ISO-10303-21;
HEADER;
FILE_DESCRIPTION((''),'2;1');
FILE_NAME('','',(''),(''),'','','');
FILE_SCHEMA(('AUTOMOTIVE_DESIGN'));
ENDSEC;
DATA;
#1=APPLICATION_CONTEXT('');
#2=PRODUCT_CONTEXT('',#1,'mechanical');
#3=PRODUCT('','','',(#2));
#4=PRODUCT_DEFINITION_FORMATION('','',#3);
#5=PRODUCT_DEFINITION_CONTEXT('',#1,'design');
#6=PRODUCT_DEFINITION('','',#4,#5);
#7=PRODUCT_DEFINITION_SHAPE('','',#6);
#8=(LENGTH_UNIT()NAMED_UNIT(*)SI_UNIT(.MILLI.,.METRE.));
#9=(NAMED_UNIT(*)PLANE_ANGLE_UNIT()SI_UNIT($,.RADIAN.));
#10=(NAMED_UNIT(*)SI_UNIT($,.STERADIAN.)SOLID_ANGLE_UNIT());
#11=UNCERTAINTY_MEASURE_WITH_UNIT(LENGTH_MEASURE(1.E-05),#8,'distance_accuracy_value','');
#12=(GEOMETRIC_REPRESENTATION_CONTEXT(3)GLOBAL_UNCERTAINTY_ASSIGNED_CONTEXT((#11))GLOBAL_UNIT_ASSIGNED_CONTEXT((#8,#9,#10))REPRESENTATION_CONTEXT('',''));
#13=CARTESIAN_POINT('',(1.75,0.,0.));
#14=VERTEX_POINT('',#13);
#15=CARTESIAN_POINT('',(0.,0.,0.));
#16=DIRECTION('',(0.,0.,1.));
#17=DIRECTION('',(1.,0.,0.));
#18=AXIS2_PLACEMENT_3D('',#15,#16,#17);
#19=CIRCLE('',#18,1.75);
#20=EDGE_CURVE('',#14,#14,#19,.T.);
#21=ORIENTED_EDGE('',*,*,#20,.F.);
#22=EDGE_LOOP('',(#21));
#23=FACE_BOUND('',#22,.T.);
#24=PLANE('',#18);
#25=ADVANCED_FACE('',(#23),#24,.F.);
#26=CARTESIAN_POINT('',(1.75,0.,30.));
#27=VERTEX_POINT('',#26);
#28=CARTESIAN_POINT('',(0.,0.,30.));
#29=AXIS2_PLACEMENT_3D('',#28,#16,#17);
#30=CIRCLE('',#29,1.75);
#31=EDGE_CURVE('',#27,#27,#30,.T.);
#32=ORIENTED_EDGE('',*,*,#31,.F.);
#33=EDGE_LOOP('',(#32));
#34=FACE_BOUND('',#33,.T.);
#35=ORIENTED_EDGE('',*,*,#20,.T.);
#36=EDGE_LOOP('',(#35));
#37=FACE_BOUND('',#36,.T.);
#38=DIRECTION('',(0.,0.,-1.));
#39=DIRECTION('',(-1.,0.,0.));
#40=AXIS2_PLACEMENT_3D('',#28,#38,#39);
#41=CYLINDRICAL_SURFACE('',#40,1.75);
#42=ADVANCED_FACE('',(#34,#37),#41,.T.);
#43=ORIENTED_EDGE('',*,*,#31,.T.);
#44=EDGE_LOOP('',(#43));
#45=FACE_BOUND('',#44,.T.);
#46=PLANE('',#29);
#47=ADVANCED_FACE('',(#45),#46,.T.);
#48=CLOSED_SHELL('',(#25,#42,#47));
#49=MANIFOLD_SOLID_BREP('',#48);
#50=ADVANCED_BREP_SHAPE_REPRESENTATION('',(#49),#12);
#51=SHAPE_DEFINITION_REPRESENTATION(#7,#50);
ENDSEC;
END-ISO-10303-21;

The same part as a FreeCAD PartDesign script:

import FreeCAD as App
import Part
import Sketcher
Q = App.Units.Quantity

doc = App.newDocument("Part")
params = doc.addObject("Spreadsheet::Sheet", "Params")
for row, (alias, value) in enumerate([
    ("sketch1_diameter", "3.5 mm"),
    ("pad1_length", "30 mm"),
], start=1):
    params.set(f"A{row}", alias)
    params.set(f"B{row}", "=" + value)
    params.setAlias(f"B{row}", alias)

body = doc.addObject("PartDesign::Body", "Body")

# Sketch on XY plane
sketch1 = body.newObject("Sketcher::SketchObject", "Sketch")
sketch1.AttachmentSupport = (doc.getObject("XY_Plane"), [""])
sketch1.MapMode = "FlatFace"
sketch1.addGeometry(Part.Circle(App.Vector(0, 0, 0), App.Vector(0, 0, 1), 1.75), False)
sketch1.addConstraint(Sketcher.Constraint("Coincident", 0, 3, -1, 1))
sketch1.addConstraint(Sketcher.Constraint("Diameter", 0, Q("3.5 mm")))
sketch1.setExpression("Constraints[1]", "Params.sketch1_diameter")
pad1 = body.newObject("PartDesign::Pad", "Pad")
pad1.Profile = sketch1
pad1.setExpression("Length", "Params.pad1_length")

doc.recompute()
